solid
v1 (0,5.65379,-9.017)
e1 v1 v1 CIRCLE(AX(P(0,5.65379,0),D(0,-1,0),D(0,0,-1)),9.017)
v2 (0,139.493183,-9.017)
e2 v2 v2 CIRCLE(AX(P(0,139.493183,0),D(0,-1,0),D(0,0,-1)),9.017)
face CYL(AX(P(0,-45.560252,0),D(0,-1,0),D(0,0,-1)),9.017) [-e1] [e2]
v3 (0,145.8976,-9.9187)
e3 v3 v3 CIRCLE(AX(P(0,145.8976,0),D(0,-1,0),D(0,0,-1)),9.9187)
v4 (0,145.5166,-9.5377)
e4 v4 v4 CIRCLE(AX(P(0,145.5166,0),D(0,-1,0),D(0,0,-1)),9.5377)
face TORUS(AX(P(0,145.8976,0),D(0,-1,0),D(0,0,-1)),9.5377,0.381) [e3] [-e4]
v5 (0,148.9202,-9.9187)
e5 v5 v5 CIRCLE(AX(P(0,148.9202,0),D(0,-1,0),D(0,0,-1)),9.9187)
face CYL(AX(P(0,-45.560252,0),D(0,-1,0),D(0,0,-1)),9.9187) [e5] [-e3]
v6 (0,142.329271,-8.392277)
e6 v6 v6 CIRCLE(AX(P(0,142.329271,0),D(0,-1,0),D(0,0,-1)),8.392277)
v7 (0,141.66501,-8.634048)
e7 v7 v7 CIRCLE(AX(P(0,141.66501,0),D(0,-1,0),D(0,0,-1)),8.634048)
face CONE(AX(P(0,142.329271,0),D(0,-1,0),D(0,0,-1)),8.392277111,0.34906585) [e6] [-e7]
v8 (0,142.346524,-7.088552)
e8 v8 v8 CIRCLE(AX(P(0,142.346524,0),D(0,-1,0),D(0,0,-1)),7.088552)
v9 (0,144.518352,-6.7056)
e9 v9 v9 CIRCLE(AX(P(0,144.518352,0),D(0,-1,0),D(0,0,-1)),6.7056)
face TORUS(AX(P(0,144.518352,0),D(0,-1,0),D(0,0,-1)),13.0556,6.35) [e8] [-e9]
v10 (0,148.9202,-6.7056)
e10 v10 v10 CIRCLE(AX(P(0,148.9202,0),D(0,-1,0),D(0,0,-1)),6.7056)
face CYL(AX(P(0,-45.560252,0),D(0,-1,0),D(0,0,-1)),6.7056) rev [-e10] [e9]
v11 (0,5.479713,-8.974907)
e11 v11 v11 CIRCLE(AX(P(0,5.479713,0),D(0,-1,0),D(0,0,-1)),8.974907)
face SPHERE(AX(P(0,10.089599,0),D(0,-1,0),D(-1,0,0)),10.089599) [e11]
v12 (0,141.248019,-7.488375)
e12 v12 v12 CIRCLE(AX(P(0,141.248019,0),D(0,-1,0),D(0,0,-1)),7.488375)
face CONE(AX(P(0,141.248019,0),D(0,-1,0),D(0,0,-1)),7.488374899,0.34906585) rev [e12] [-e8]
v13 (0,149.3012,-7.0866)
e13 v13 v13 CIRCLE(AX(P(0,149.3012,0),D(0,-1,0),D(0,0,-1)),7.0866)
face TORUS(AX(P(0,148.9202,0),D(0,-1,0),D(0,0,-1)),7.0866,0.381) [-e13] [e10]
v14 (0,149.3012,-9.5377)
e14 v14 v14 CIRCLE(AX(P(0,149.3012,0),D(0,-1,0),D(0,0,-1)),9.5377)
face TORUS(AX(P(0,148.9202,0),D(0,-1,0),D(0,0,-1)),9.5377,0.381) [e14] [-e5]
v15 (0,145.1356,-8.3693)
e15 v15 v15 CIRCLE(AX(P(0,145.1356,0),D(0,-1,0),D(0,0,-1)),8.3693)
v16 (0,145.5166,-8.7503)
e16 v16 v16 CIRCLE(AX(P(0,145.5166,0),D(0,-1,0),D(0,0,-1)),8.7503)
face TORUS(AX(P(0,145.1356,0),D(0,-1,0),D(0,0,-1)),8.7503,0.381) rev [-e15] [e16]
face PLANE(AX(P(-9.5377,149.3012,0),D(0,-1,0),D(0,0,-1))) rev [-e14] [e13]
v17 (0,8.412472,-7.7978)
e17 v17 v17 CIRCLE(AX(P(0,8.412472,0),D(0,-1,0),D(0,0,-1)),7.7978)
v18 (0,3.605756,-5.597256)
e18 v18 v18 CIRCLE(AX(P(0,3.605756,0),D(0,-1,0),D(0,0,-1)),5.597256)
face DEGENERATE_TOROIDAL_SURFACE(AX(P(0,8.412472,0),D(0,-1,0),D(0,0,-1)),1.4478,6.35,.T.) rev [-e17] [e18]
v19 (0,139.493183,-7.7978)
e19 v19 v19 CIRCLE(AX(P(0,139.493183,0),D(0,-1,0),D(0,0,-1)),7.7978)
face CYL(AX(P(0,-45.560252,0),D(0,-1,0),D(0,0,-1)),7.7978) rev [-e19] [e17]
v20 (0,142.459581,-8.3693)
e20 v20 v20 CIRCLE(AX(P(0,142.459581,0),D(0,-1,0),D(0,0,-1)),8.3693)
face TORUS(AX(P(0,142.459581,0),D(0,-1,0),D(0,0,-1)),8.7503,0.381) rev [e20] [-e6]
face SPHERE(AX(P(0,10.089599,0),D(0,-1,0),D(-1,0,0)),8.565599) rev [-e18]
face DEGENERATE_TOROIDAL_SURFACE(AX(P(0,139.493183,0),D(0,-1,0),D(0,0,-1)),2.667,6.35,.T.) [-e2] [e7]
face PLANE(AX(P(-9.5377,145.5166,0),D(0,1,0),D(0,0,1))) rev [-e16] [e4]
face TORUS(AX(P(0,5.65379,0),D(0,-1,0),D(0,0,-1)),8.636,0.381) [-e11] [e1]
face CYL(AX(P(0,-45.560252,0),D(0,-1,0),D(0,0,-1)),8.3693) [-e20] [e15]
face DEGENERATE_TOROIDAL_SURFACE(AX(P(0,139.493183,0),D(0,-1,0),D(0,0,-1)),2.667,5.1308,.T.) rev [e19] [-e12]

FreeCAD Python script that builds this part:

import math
import FreeCAD as App
import Part
import Sketcher

V = App.Vector
Q = App.Units.Quantity

doc = App.newDocument("Part")
body = doc.addObject("PartDesign::Body", "Body")

# Sketch on XY plane
sketch1 = doc.addObject("Sketcher::SketchObject", "Sketch")
body.addObject(sketch1)
sketch1.AttachmentSupport = (doc.XY_Plane, [""])
sketch1.MapMode = "FlatFace"
sketch1.addGeometry([
    Part.LineSegment(V(-9.02, 139.49, 0), V(-9.02, 5.65, 0)),  # 0
    Part.ArcOfCircle(Part.Circle(V(-8.64, 5.65, 0), V(0, 0, 1), 0.38), math.radians(-180), math.radians(-153)),  # 1
    Part.ArcOfCircle(Part.Circle(V(0, 10.09, 0), V(0, 0, 1), 10.09), math.radians(-153), math.radians(-90)),  # 2
    Part.LineSegment(V(0, 0, 0), V(0, 1.52, 0)),  # 3
    Part.ArcOfCircle(Part.Circle(V(0, 10.09, 0), V(0, 0, 1), 8.57), math.radians(-131), math.radians(-90)),  # 4
    Part.ArcOfCircle(Part.Circle(V(-1.45, 8.41, 0), V(0, 0, 1), 6.35), math.radians(-180), math.radians(-131)),  # 5
    Part.LineSegment(V(-7.8, 8.41, 0), V(-7.8, 139.49, 0)),  # 6
    Part.ArcOfCircle(Part.Circle(V(-2.67, 139.49, 0), V(0, 0, 1), 5.13), math.radians(160), math.radians(180)),  # 7
    Part.LineSegment(V(-7.49, 141.25, 0), V(-7.09, 142.35, 0)),  # 8
    Part.ArcOfCircle(Part.Circle(V(-13.06, 144.52, 0), V(0, 0, 1), 6.35), math.radians(-20), math.radians(0)),  # 9
    Part.LineSegment(V(-6.71, 144.52, 0), V(-6.71, 148.92, 0)),  # 10
    Part.ArcOfCircle(Part.Circle(V(-7.09, 148.92, 0), V(0, 0, 1), 0.38), math.radians(0), math.radians(90)),  # 11
    Part.LineSegment(V(-7.09, 149.3, 0), V(-9.54, 149.3, 0)),  # 12
    Part.ArcOfCircle(Part.Circle(V(-9.54, 148.92, 0), V(0, 0, 1), 0.38), math.radians(90), math.radians(180)),  # 13
    Part.LineSegment(V(-9.92, 148.92, 0), V(-9.92, 145.9, 0)),  # 14
    Part.ArcOfCircle(Part.Circle(V(-9.54, 145.9, 0), V(0, 0, 1), 0.38), math.radians(180), math.radians(270)),  # 15
    Part.LineSegment(V(-9.54, 145.52, 0), V(-8.75, 145.52, 0)),  # 16
    Part.ArcOfCircle(Part.Circle(V(-8.75, 145.14, 0), V(0, 0, 1), 0.38), math.radians(0), math.radians(90)),  # 17
    Part.LineSegment(V(-8.37, 145.14, 0), V(-8.37, 142.46, 0)),  # 18
    Part.ArcOfCircle(Part.Circle(V(-8.75, 142.46, 0), V(0, 0, 1), 0.38), math.radians(-20), math.radians(0)),  # 19
    Part.LineSegment(V(-8.39, 142.33, 0), V(-8.63, 141.67, 0)),  # 20
    Part.ArcOfCircle(Part.Circle(V(-2.67, 139.49, 0), V(0, 0, 1), 6.35), math.radians(160), math.radians(180)),  # 21
], False)
sketch1.addConstraint([
    Sketcher.Constraint("Tangent", 0, 2, 1, 1),
    Sketcher.Constraint("Tangent", 1, 2, 2, 1),
    Sketcher.Constraint("Coincident", 2, 2, 3, 1),
    Sketcher.Constraint("Coincident", 3, 2, 4, 2),
    Sketcher.Constraint("Tangent", 4, 1, 5, 2),
    Sketcher.Constraint("Tangent", 5, 1, 6, 1),
    Sketcher.Constraint("Tangent", 6, 2, 7, 2),
    Sketcher.Constraint("Tangent", 7, 1, 8, 1),
    Sketcher.Constraint("Tangent", 8, 2, 9, 1),
    Sketcher.Constraint("Tangent", 9, 2, 10, 1),
    Sketcher.Constraint("Tangent", 10, 2, 11, 1),
    Sketcher.Constraint("Tangent", 11, 2, 12, 1),
    Sketcher.Constraint("Tangent", 12, 2, 13, 1),
    Sketcher.Constraint("Tangent", 13, 2, 14, 1),
    Sketcher.Constraint("Tangent", 14, 2, 15, 1),
    Sketcher.Constraint("Tangent", 15, 2, 16, 1),
    Sketcher.Constraint("Tangent", 16, 2, 17, 2),
    Sketcher.Constraint("Tangent", 17, 1, 18, 1),
    Sketcher.Constraint("Tangent", 18, 2, 19, 2),
    Sketcher.Constraint("Tangent", 19, 1, 20, 1),
    Sketcher.Constraint("Tangent", 20, 2, 21, 1),
    Sketcher.Constraint("Tangent", 21, 2, 0, 1),
    Sketcher.Constraint("Vertical", 0),
    Sketcher.Constraint("Vertical", 3),
    Sketcher.Constraint("Vertical", 6),
    Sketcher.Constraint("Vertical", 10),
    Sketcher.Constraint("Horizontal", 12),
    Sketcher.Constraint("Vertical", 14),
    Sketcher.Constraint("Horizontal", 16),
    Sketcher.Constraint("Vertical", 18),
    Sketcher.Constraint("Coincident", 2, 2, -1, 1),
    Sketcher.Constraint("Coincident", 4, 3, 2, 3),
    Sketcher.Constraint("Coincident", 21, 3, 7, 3),
    Sketcher.Constraint("Equal", 5, 9),
    Sketcher.Constraint("Equal", 1, 11),
    Sketcher.Constraint("Equal", 11, 13),
    Sketcher.Constraint("Equal", 13, 15),
    Sketcher.Constraint("Equal", 15, 17),
    Sketcher.Constraint("Equal", 17, 19),
    Sketcher.Constraint("Equal", 9, 21),
    Sketcher.Constraint("PointOnObject", 2, 3, -2),
    Sketcher.Constraint("Parallel", 8, 20),
    Sketcher.Constraint("Radius", 5, Q("0.25 in")),
    Sketcher.Constraint("Angle", 8, Q("70 deg")),
    Sketcher.Constraint("Radius", 1, Q("0.015 in")),
    Sketcher.Constraint("Radius", 7, Q("0.202 in")),
    Sketcher.Constraint("DistanceY", 3, 1, 3, 2, Q("0.06 in")),
    Sketcher.Constraint("DistanceX", 16, 1, 16, 2, Q("0.031 in")),
    Sketcher.Constraint("DistanceY", 14, 2, 14, 1, Q("0.119 in")),
    Sketcher.Constraint("DistanceX", 1, 3, -1, 1, Q("0.34 in")),
    Sketcher.Constraint("Radius", 2, Q("10.089599 mm")),
    Sketcher.Constraint("DistanceX", 12, 2, 12, 1, Q("0.0965 in")),
    Sketcher.Constraint("DistanceX", 9, 3, -1, 1, Q("0.514 in")),
    Sketcher.Constraint("DistanceY", -1, 1, 11, 3, Q("5.863 in")),
    Sketcher.Constraint("DistanceY", 6, 1, 6, 2, Q("131.08071 mm")),
])
revolution = doc.addObject("PartDesign::Revolution", "Revolution")
body.addObject(revolution)
revolution.Profile = sketch1
revolution.ReferenceAxis = (sketch1, ["V_Axis"])
revolution.Angle = 360

doc.recompute()
